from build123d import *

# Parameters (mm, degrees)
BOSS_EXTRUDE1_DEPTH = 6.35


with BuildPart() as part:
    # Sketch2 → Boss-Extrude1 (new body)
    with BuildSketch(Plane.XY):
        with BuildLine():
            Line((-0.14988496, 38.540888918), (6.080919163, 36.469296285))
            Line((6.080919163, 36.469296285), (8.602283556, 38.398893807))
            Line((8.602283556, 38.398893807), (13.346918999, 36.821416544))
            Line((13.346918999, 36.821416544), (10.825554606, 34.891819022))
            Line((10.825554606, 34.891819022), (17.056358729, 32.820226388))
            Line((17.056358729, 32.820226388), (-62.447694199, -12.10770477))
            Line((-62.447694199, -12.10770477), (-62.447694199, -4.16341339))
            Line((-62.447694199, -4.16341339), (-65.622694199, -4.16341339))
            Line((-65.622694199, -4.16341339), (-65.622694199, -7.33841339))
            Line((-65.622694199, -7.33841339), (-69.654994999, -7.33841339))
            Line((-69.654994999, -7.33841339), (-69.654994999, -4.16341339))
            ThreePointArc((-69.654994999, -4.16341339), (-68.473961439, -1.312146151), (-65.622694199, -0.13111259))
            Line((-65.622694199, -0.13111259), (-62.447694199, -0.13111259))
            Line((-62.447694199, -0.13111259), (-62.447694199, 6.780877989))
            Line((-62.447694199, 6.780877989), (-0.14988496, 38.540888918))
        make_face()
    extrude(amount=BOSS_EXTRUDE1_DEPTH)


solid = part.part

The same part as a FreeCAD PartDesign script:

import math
import FreeCAD as App
import Part
import Sketcher

V = App.Vector
Q = App.Units.Quantity

doc = App.newDocument("Part")
params = doc.addObject("Spreadsheet::Sheet", "Params")
for row, (alias, value) in enumerate([
    ("sketch1_width", "0.125 in"),
    ("sketch1_length", "0.125 in"),
    ("pad1_length", "0.25 in"),
], start=1):
    params.set(f"A{row}", alias)
    params.set(f"B{row}", "=" + value)
    params.setAlias(f"B{row}", alias)

body = doc.addObject("PartDesign::Body", "Body")

# Sketch on XY plane
sketch1 = body.newObject("Sketcher::SketchObject", "Sketch")
sketch1.AttachmentSupport = (doc.getObject("XY_Plane"), [""])
sketch1.MapMode = "FlatFace"
sketch1.addGeometry([
    Part.LineSegment(V(6.080919, 36.469296, 0), V(-0.149885, 38.540889, 0)),  # 0
    Part.LineSegment(V(-0.149885, 38.540889, 0), V(-62.447694, 6.780878, 0)),  # 1
    Part.LineSegment(V(-62.447694, 6.780878, 0), V(-62.447694, -0.131113, 0)),  # 2
    Part.LineSegment(V(-62.447694, -0.131113, 0), V(-65.622694, -0.131113, 0)),  # 3
    Part.ArcOfCircle(Part.Circle(V(-65.622694, -4.163413, 0), V(0, 0, 1), 4.032301), math.radians(90), math.radians(180)),  # 4
    Part.LineSegment(V(-69.654995, -4.163413, 0), V(-69.654995, -7.338413, 0)),  # 5
    Part.LineSegment(V(-69.654995, -7.338413, 0), V(-65.622694, -7.338413, 0)),  # 6
    Part.LineSegment(V(-65.622694, -7.338413, 0), V(-65.622694, -4.163413, 0)),  # 7
    Part.LineSegment(V(-65.622694, -4.163413, 0), V(-62.447694, -4.163413, 0)),  # 8
    Part.LineSegment(V(-62.447694, -4.163413, 0), V(-62.447694, -12.107705, 0)),  # 9
    Part.LineSegment(V(-62.447694, -12.107705, 0), V(17.056359, 32.820226, 0)),  # 10
    Part.LineSegment(V(17.056359, 32.820226, 0), V(10.825555, 34.891819, 0)),  # 11
    Part.LineSegment(V(10.825555, 34.891819, 0), V(13.346919, 36.821417, 0)),  # 12
    Part.LineSegment(V(13.346919, 36.821417, 0), V(8.602284, 38.398894, 0)),  # 13
    Part.LineSegment(V(8.602284, 38.398894, 0), V(6.080919, 36.469296, 0)),  # 14
], False)
sketch1.addConstraint([
    Sketcher.Constraint("Coincident", 0, 2, 1, 1),
    Sketcher.Constraint("Coincident", 1, 2, 2, 1),
    Sketcher.Constraint("Coincident", 2, 2, 3, 1),
    Sketcher.Constraint("Tangent", 3, 2, 4, 1),
    Sketcher.Constraint("Tangent", 4, 2, 5, 1),
    Sketcher.Constraint("Coincident", 5, 2, 6, 1),
    Sketcher.Constraint("Coincident", 6, 2, 7, 1),
    Sketcher.Constraint("Coincident", 7, 2, 8, 1),
    Sketcher.Constraint("Coincident", 8, 2, 9, 1),
    Sketcher.Constraint("Coincident", 9, 2, 10, 1),
    Sketcher.Constraint("Coincident", 10, 2, 11, 1),
    Sketcher.Constraint("Coincident", 11, 2, 12, 1),
    Sketcher.Constraint("Coincident", 12, 2, 13, 1),
    Sketcher.Constraint("Coincident", 13, 2, 14, 1),
    Sketcher.Constraint("Coincident", 14, 2, 0, 1),
    Sketcher.Constraint("Vertical", 2),
    Sketcher.Constraint("Horizontal", 3),
    Sketcher.Constraint("Vertical", 5),
    Sketcher.Constraint("Horizontal", 6),
    Sketcher.Constraint("Vertical", 7),
    Sketcher.Constraint("Horizontal", 8),
    Sketcher.Constraint("Vertical", 9),
    Sketcher.Constraint("Coincident", 7, 2, 4, 3),
    Sketcher.Constraint("Parallel", 0, 11),
    Sketcher.Constraint("Parallel", 11, 13),
    Sketcher.Constraint("Parallel", 12, 14),
    Sketcher.Constraint("Vertical", 2, 2, 8, 2),
    Sketcher.Constraint("Equal", 8, 5),
    Sketcher.Constraint("Equal", 0, 11),
    Sketcher.Constraint("Equal", 12, 14),
    Sketcher.Constraint("DistanceX", 3, 2, 3, 1, Q("0.125 in")),
    Sketcher.Constraint("Radius", 4, Q("4.032301 mm")),
    Sketcher.Constraint("Distance", 12, Q("0.125 in")),
    Sketcher.Constraint("Distance", 1, Q("69.926499 mm")),
    Sketcher.Constraint("Distance", 13, Q("5 mm")),
    Sketcher.Constraint("DistanceY", 2, 2, 2, 1, Q("6.911991 mm")),
    Sketcher.Constraint("DistanceY", 9, 2, 9, 1, Q("7.944291 mm")),
    Sketcher.Constraint("DistanceY", 2, 2, 0, 2, Q("38.672002 mm")),
    Sketcher.Constraint("DistanceX", 14, 2, 12, 2, Q("7.266 mm")),
    Sketcher.Constraint("Distance", 10, Q("91.320389 mm")),
    Sketcher.Constraint("DistanceY", -1, 1, 0, 2, Q("38.540889 mm")),
    Sketcher.Constraint("DistanceX", -1, 1, 10, 2, Q("17.056359 mm")),
    Sketcher.Constraint("DistanceY", -1, 1, 11, 2, Q("34.891819 mm")),
])
sketch1.setExpression("Constraints[30]", "Params.sketch1_width")
sketch1.setExpression("Constraints[32]", "Params.sketch1_length")
pad1 = body.newObject("PartDesign::Pad", "Pad")
pad1.Profile = sketch1
pad1.setExpression("Length", "Params.pad1_length")

doc.recompute()
